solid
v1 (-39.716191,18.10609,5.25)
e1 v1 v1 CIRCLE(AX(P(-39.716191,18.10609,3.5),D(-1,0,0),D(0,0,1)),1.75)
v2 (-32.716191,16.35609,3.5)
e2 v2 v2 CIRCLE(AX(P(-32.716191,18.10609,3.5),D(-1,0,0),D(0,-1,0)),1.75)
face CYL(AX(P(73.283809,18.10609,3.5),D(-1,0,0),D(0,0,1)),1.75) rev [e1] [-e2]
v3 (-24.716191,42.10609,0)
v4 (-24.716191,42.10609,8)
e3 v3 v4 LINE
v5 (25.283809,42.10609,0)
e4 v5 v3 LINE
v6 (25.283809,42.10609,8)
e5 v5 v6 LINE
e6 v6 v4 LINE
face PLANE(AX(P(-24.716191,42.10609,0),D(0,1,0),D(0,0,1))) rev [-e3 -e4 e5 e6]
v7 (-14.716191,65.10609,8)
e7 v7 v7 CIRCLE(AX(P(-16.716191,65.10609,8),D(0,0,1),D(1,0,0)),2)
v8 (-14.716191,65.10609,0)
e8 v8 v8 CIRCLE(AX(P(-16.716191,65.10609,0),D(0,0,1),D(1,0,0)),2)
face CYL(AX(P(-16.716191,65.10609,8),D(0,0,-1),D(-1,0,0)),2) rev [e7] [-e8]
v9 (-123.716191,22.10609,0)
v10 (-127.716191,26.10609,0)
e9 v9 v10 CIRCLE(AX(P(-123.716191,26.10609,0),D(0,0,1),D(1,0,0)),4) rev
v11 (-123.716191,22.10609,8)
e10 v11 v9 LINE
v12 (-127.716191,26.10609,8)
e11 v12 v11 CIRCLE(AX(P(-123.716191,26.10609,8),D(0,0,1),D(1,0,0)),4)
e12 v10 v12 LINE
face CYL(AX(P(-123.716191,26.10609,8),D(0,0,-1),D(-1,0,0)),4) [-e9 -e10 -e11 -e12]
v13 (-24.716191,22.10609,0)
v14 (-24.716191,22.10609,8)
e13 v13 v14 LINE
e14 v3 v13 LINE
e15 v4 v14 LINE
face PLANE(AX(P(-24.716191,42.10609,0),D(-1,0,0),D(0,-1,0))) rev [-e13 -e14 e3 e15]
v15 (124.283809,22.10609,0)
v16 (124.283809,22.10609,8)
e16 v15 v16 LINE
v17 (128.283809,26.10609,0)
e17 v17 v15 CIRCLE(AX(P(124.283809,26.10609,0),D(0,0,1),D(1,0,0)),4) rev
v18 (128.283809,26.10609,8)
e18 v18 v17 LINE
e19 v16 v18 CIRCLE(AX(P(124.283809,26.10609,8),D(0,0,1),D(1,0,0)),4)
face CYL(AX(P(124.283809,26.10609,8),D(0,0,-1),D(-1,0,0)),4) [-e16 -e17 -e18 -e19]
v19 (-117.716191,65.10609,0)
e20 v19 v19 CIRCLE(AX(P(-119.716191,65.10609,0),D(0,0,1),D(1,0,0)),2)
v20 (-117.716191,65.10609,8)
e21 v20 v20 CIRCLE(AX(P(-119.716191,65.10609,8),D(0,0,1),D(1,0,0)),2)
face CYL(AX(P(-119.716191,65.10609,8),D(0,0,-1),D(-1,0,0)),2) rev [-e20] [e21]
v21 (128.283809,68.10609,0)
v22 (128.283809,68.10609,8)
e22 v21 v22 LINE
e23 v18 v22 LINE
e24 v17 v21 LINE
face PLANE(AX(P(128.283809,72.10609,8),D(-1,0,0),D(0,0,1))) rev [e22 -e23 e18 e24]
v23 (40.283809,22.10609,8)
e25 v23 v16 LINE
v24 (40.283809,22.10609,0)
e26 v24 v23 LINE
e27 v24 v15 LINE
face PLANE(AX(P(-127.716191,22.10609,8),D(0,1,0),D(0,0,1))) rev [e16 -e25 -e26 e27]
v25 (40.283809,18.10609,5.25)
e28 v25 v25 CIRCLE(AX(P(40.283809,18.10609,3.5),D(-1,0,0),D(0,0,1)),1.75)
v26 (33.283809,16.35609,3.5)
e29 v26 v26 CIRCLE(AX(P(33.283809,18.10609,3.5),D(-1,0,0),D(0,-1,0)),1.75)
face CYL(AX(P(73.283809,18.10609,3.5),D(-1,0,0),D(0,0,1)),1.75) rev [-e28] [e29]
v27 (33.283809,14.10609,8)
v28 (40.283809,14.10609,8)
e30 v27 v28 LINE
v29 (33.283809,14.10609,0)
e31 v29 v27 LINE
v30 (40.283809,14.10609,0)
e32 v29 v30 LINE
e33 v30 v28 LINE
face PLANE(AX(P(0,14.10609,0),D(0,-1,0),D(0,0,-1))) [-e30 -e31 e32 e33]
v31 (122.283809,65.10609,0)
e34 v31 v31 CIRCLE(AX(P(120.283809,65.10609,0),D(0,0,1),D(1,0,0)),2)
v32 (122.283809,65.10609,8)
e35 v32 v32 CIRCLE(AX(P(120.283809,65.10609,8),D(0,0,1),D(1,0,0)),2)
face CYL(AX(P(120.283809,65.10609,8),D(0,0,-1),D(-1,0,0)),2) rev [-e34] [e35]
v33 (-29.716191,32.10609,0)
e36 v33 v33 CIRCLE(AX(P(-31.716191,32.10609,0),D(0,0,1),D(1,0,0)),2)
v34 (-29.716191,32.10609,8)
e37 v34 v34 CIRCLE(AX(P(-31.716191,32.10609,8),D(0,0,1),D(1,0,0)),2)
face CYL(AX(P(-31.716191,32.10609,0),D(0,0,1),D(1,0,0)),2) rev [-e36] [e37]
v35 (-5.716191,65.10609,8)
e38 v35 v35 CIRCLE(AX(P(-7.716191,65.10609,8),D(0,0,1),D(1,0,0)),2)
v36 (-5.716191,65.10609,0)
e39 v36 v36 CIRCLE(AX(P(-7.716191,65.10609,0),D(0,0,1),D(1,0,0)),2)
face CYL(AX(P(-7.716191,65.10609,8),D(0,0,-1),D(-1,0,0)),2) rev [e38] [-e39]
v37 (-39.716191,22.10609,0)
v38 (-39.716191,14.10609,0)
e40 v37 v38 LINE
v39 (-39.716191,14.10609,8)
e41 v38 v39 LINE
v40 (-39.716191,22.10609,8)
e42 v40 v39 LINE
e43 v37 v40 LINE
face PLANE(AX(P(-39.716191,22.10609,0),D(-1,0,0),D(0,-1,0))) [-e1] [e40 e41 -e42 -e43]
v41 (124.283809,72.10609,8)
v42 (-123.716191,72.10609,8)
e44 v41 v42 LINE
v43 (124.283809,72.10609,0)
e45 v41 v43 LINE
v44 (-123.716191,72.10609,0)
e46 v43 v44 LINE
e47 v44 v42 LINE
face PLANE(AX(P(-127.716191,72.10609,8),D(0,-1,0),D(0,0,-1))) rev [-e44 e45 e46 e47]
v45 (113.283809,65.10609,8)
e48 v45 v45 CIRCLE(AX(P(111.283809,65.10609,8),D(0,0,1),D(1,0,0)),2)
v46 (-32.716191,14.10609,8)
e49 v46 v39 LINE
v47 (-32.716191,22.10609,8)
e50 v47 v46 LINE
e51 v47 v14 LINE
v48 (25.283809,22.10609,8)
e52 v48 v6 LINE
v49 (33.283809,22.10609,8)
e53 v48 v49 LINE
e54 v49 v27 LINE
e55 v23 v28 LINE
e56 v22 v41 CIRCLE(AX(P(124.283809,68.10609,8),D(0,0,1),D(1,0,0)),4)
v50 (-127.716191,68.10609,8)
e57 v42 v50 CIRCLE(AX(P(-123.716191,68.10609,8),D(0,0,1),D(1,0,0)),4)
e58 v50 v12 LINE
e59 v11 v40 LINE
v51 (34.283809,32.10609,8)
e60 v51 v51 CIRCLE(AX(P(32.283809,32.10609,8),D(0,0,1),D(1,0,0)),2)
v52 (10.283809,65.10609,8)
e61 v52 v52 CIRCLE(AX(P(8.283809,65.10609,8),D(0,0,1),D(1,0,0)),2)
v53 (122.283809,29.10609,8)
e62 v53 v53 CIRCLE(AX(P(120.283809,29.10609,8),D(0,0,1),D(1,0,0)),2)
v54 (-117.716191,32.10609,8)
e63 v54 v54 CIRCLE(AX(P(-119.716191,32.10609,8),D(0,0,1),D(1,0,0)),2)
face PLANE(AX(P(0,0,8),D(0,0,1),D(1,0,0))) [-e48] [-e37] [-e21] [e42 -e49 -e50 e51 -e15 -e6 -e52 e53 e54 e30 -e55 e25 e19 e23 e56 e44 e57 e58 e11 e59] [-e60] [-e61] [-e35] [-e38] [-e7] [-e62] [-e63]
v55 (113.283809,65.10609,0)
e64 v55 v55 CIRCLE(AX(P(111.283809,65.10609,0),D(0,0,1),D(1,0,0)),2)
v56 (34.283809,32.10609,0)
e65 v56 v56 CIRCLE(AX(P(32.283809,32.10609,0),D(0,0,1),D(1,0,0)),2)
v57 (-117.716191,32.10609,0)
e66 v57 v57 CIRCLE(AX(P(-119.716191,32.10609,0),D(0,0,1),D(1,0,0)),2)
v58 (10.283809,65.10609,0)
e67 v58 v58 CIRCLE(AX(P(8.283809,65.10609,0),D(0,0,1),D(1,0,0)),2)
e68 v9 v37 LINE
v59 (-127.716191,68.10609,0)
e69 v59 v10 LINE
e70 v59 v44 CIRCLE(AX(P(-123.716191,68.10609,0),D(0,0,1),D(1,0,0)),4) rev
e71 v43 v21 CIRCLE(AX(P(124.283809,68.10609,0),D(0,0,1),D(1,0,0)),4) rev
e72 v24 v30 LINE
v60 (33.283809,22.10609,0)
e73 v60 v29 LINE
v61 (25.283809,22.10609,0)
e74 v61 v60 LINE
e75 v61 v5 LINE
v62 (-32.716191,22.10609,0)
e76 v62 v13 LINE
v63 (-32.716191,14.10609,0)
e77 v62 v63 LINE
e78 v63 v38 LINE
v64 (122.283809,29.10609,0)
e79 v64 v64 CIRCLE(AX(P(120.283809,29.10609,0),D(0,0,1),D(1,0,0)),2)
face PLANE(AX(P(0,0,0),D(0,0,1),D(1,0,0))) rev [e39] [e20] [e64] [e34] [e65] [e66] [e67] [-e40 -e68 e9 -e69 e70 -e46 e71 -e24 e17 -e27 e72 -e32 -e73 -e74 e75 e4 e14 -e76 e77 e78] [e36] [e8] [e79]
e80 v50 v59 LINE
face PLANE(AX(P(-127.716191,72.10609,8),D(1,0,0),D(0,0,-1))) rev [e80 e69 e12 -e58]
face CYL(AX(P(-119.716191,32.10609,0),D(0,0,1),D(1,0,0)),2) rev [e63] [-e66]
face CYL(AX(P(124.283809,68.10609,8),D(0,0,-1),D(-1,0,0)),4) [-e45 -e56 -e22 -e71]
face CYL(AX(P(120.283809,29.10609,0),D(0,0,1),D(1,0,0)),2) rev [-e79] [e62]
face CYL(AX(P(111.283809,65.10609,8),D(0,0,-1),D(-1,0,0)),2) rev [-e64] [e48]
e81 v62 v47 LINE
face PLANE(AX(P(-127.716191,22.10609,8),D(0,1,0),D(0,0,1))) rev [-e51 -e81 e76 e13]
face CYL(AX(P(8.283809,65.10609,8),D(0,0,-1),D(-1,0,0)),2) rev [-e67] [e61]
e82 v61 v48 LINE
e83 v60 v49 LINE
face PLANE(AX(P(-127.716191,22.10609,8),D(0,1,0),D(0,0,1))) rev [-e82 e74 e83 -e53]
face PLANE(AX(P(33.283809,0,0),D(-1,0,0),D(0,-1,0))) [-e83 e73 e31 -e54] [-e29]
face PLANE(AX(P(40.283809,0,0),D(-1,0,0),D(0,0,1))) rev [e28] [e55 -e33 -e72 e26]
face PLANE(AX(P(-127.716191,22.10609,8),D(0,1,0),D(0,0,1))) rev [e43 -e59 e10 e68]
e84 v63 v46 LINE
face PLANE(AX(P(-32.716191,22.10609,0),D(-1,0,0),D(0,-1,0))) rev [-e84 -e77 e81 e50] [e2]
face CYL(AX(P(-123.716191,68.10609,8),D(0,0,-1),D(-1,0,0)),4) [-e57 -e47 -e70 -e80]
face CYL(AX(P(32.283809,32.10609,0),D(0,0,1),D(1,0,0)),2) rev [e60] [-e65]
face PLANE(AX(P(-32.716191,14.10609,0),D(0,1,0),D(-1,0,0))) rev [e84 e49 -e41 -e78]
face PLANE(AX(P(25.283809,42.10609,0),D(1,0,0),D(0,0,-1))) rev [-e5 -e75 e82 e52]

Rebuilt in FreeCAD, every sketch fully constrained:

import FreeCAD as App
import Part
import Sketcher
from FreeCAD import Vector
Q = App.Units.Quantity


def edges_at(feature, points):
    """Names of the edges that pass closest to the given points."""
    edges = feature.Shape.Edges
    near = lambda p: min(range(len(edges)), key=lambda i: edges[i].distToShape(Part.Vertex(*p))[0])
    return sorted({f"Edge{near(p) + 1}" for p in points})

doc = App.newDocument("Part")
body = doc.addObject("PartDesign::Body", "Body")

# Sketch on XY plane
sketch1 = body.newObject("Sketcher::SketchObject", "Sketch")
sketch1.AttachmentSupport = (doc.getObject("XY_Plane"), [""])
sketch1.MapMode = "FlatFace"
sketch1.addGeometry([
    Part.LineSegment(Vector(-127.716191, 72.10609, 0), Vector(-127.716191, 22.10609, 0)),  # 0
    Part.LineSegment(Vector(-127.716191, 22.10609, 0), Vector(128.283809, 22.10609, 0)),  # 1
    Part.LineSegment(Vector(128.283809, 22.10609, 0), Vector(128.283809, 72.10609, 0)),  # 2
    Part.LineSegment(Vector(128.283809, 72.10609, 0), Vector(-127.716191, 72.10609, 0)),  # 3
    Part.Circle(Vector(-119.716191, 65.10609, 0), Vector(0, 0, 1), 2),  # 4
    Part.Circle(Vector(-16.716191, 65.10609, 0), Vector(0, 0, 1), 2),  # 5
    Part.Circle(Vector(-7.716191, 65.10609, 0), Vector(0, 0, 1), 2),  # 6
    Part.Circle(Vector(8.283809, 65.10609, 0), Vector(0, 0, 1), 2),  # 7
    Part.Circle(Vector(111.283809, 65.10609, 0), Vector(0, 0, 1), 2),  # 8
    Part.Circle(Vector(120.283809, 65.10609, 0), Vector(0, 0, 1), 2),  # 9
], False)
sketch1.addConstraint([
    Sketcher.Constraint("Coincident", 0, 2, 1, 1),
    Sketcher.Constraint("Coincident", 1, 2, 2, 1),
    Sketcher.Constraint("Coincident", 2, 2, 3, 1),
    Sketcher.Constraint("Coincident", 3, 2, 0, 1),
    Sketcher.Constraint("Vertical", 0),
    Sketcher.Constraint("Horizontal", 1),
    Sketcher.Constraint("Vertical", 2),
    Sketcher.Constraint("Horizontal", 3),
    Sketcher.Constraint("Equal", 4, 5),
    Sketcher.Constraint("Equal", 5, 6),
    Sketcher.Constraint("Equal", 6, 7),
    Sketcher.Constraint("Equal", 7, 8),
    Sketcher.Constraint("Equal", 8, 9),
    Sketcher.Constraint("Horizontal", 4, 3, 5, 3),
    Sketcher.Constraint("Horizontal", 5, 3, 6, 3),
    Sketcher.Constraint("Horizontal", 6, 3, 7, 3),
    Sketcher.Constraint("Horizontal", 7, 3, 8, 3),
    Sketcher.Constraint("Horizontal", 8, 3, 9, 3),
    Sketcher.Constraint("Diameter", 4, Q("4 mm")),
    Sketcher.Constraint("DistanceX", 1, 1, 1, 2, Q("256 mm")),
    Sketcher.Constraint("DistanceY", 0, 2, 0, 1, Q("50 mm")),
    Sketcher.Constraint("DistanceX", 4, 3, 5, 3, Q("103 mm")),
    Sketcher.Constraint("DistanceX", 5, 3, 6, 3, Q("9 mm")),
    Sketcher.Constraint("DistanceX", 6, 3, 7, 3, Q("16 mm")),
    Sketcher.Constraint("DistanceX", 7, 3, 8, 3, Q("103 mm")),
    Sketcher.Constraint("DistanceX", 8, 3, 9, 3, Q("9 mm")),
    Sketcher.Constraint("DistanceX", 0, 2, 4, 3, Q("8 mm")),
    Sketcher.Constraint("DistanceY", 0, 2, 4, 3, Q("43 mm")),
    Sketcher.Constraint("DistanceX", 4, 3, -1, 1, Q("119.716191 mm")),
    Sketcher.Constraint("DistanceY", -1, 1, 4, 3, Q("65.10609 mm")),
])
pad1 = body.newObject("PartDesign::Pad", "Pad")
pad1.Profile = sketch1
pad1.Length = 8
doc.recompute()

fillet = body.newObject("PartDesign::Fillet", "Fillet")
fillet.Base = (pad1, edges_at(pad1, [
    (-127.716, 72.106, 4),
    (128.284, 72.106, 4),
    (128.284, 22.106, 4),
    (-127.716, 22.106, 4),
]))
fillet.Radius = 4

# Sketch on XY plane
sketch2 = body.newObject("Sketcher::SketchObject", "Sketch001")
sketch2.AttachmentSupport = (doc.getObject("XY_Plane"), [""])
sketch2.MapMode = "FlatFace"
sketch2.AttachmentOffset = App.Placement(Vector(0, 0, 8), App.Rotation())
sketch2.addGeometry([
    Part.LineSegment(Vector(33.283809, 22.10609, 0), Vector(33.283809, 14.10609, 0)),  # 0
    Part.LineSegment(Vector(33.283809, 14.10609, 0), Vector(40.283809, 14.10609, 0)),  # 1
    Part.LineSegment(Vector(40.283809, 14.10609, 0), Vector(40.283809, 22.10609, 0)),  # 2
    Part.LineSegment(Vector(40.283809, 22.10609, 0), Vector(33.283809, 22.10609, 0)),  # 3
    Part.LineSegment(Vector(-39.716191, 22.10609, 0), Vector(-39.716191, 14.10609, 0)),  # 4
    Part.LineSegment(Vector(-39.716191, 14.10609, 0), Vector(-32.716191, 14.10609, 0)),  # 5
    Part.LineSegment(Vector(-32.716191, 14.10609, 0), Vector(-32.716191, 22.10609, 0)),  # 6
    Part.LineSegment(Vector(-32.716191, 22.10609, 0), Vector(-39.716191, 22.10609, 0)),  # 7
], False)
sketch2.addConstraint([
    Sketcher.Constraint("Coincident", 0, 2, 1, 1),
    Sketcher.Constraint("Coincident", 1, 2, 2, 1),
    Sketcher.Constraint("Coincident", 2, 2, 3, 1),
    Sketcher.Constraint("Coincident", 3, 2, 0, 1),
    Sketcher.Constraint("Coincident", 4, 2, 5, 1),
    Sketcher.Constraint("Coincident", 5, 2, 6, 1),
    Sketcher.Constraint("Coincident", 6, 2, 7, 1),
    Sketcher.Constraint("Coincident", 7, 2, 4, 1),
    Sketcher.Constraint("Vertical", 0),
    Sketcher.Constraint("Horizontal", 1),
    Sketcher.Constraint("Vertical", 2),
    Sketcher.Constraint("Horizontal", 3),
    Sketcher.Constraint("Vertical", 4),
    Sketcher.Constraint("Horizontal", 5),
    Sketcher.Constraint("Vertical", 6),
    Sketcher.Constraint("Horizontal", 7),
    Sketcher.Constraint("Horizontal", 1, 2, 4, 2),
    Sketcher.Constraint("Horizontal", 3, 2, 6, 2),
    Sketcher.Constraint("Equal", 3, 5),
    Sketcher.Constraint("DistanceX", 1, 1, 1, 2, Q("7 mm")),
    Sketcher.Constraint("DistanceY", 0, 2, 0, 1, Q("8 mm")),
    Sketcher.Constraint("DistanceX", 4, 2, 0, 2, Q("73 mm")),
    Sketcher.Constraint("DistanceX", -1, 1, 0, 2, Q("33.283809 mm")),
    Sketcher.Constraint("DistanceY", -1, 1, 0, 2, Q("14.10609 mm")),
])
pad2 = body.newObject("PartDesign::Pad", "Pad001")
pad2.Profile = sketch2
pad2.Length = 8
pad2.Reversed = True

# Sketch on XY plane
sketch3 = body.newObject("Sketcher::SketchObject", "Sketch002")
sketch3.AttachmentSupport = (doc.getObject("XY_Plane"), [""])
sketch3.MapMode = "FlatFace"
sketch3.AttachmentOffset = App.Placement(Vector(0, 0, 8), App.Rotation())
sketch3.addGeometry([
    Part.LineSegment(Vector(-24.716191, 42.10609, 0), Vector(-24.716191, 22.10609, 0)),
    Part.LineSegment(Vector(-24.716191, 22.10609, 0), Vector(25.283809, 22.10609, 0)),
    Part.LineSegment(Vector(25.283809, 22.10609, 0), Vector(25.283809, 42.10609, 0)),
    Part.LineSegment(Vector(25.283809, 42.10609, 0), Vector(-24.716191, 42.10609, 0)),
], False)
sketch3.addConstraint([
    Sketcher.Constraint("Coincident", 0, 2, 1, 1),
    Sketcher.Constraint("Coincident", 1, 2, 2, 1),
    Sketcher.Constraint("Coincident", 2, 2, 3, 1),
    Sketcher.Constraint("Coincident", 3, 2, 0, 1),
    Sketcher.Constraint("Vertical", 0),
    Sketcher.Constraint("Horizontal", 1),
    Sketcher.Constraint("Vertical", 2),
    Sketcher.Constraint("Horizontal", 3),
    Sketcher.Constraint("DistanceX", 1, 1, 1, 2, Q("50 mm")),
    Sketcher.Constraint("DistanceY", 0, 2, 0, 1, Q("20 mm")),
    Sketcher.Constraint("DistanceX", 0, 2, -1, 1, Q("24.716191 mm")),
    Sketcher.Constraint("DistanceY", -1, 1, 0, 2, Q("22.10609 mm")),
])
pocket1 = body.newObject("PartDesign::Pocket", "Pocket")
pocket1.Profile = sketch3
pocket1.Length = 8

# Sketch on XY plane
sketch4 = body.newObject("Sketcher::SketchObject", "Sketch003")
sketch4.AttachmentSupport = (doc.getObject("XY_Plane"), [""])
sketch4.MapMode = "FlatFace"
sketch4.AttachmentOffset = App.Placement(Vector(0, 0, 8), App.Rotation())
sketch4.addGeometry([
    Part.Circle(Vector(-31.716191, 32.10609, 0), Vector(0, 0, 1), 2),
    Part.Circle(Vector(32.283809, 32.10609, 0), Vector(0, 0, 1), 2),
    Part.Circle(Vector(-119.716191, 32.10609, 0), Vector(0, 0, 1), 2),
    Part.Circle(Vector(120.283809, 29.10609, 0), Vector(0, 0, 1), 2),
], False)
sketch4.addConstraint([
    Sketcher.Constraint("Equal", 0, 1),
    Sketcher.Constraint("Equal", 1, 2),
    Sketcher.Constraint("Equal", 2, 3),
    Sketcher.Constraint("Horizontal", 0, 3, 1, 3),
    Sketcher.Constraint("Horizontal", 1, 3, 2, 3),
    Sketcher.Constraint("Diameter", 0, Q("4 mm")),
    Sketcher.Constraint("DistanceX", 0, 3, 1, 3, Q("64 mm")),
    Sketcher.Constraint("DistanceX", 2, 3, 0, 3, Q("88 mm")),
    Sketcher.Constraint("DistanceX", 1, 3, 3, 3, Q("88 mm")),
    Sketcher.Constraint("DistanceY", 3, 3, 1, 3, Q("3 mm")),
    Sketcher.Constraint("DistanceX", 0, 3, -1, 1, Q("31.716191 mm")),
    Sketcher.Constraint("DistanceY", -1, 1, 0, 3, Q("32.10609 mm")),
])
pocket2 = body.newObject("PartDesign::Pocket", "Pocket001")
pocket2.Profile = sketch4
pocket2.Length = 8

# Sketch on YZ plane
sketch5 = body.newObject("Sketcher::SketchObject", "Sketch004")
sketch5.AttachmentSupport = (doc.getObject("YZ_Plane"), [""])
sketch5.MapMode = "FlatFace"
sketch5.AttachmentOffset = App.Placement(Vector(0, 0, -39.716191), App.Rotation())
sketch5.addGeometry(Part.Circle(Vector(18.10609, 3.5, 0), Vector(0, 0, 1), 1.75), False)
sketch5.addConstraint([
    Sketcher.Constraint("Diameter", 0, Q("3.5 mm")),
    Sketcher.Constraint("DistanceY", -1, 1, 0, 3, Q("3.5 mm")),
    Sketcher.Constraint("DistanceX", -1, 1, 0, 3, Q("18.10609 mm")),
])
pocket3 = body.newObject("PartDesign::Pocket", "Pocket002")
pocket3.Profile = sketch5
pocket3.Length = 113
pocket3.Reversed = True

doc.recompute()
